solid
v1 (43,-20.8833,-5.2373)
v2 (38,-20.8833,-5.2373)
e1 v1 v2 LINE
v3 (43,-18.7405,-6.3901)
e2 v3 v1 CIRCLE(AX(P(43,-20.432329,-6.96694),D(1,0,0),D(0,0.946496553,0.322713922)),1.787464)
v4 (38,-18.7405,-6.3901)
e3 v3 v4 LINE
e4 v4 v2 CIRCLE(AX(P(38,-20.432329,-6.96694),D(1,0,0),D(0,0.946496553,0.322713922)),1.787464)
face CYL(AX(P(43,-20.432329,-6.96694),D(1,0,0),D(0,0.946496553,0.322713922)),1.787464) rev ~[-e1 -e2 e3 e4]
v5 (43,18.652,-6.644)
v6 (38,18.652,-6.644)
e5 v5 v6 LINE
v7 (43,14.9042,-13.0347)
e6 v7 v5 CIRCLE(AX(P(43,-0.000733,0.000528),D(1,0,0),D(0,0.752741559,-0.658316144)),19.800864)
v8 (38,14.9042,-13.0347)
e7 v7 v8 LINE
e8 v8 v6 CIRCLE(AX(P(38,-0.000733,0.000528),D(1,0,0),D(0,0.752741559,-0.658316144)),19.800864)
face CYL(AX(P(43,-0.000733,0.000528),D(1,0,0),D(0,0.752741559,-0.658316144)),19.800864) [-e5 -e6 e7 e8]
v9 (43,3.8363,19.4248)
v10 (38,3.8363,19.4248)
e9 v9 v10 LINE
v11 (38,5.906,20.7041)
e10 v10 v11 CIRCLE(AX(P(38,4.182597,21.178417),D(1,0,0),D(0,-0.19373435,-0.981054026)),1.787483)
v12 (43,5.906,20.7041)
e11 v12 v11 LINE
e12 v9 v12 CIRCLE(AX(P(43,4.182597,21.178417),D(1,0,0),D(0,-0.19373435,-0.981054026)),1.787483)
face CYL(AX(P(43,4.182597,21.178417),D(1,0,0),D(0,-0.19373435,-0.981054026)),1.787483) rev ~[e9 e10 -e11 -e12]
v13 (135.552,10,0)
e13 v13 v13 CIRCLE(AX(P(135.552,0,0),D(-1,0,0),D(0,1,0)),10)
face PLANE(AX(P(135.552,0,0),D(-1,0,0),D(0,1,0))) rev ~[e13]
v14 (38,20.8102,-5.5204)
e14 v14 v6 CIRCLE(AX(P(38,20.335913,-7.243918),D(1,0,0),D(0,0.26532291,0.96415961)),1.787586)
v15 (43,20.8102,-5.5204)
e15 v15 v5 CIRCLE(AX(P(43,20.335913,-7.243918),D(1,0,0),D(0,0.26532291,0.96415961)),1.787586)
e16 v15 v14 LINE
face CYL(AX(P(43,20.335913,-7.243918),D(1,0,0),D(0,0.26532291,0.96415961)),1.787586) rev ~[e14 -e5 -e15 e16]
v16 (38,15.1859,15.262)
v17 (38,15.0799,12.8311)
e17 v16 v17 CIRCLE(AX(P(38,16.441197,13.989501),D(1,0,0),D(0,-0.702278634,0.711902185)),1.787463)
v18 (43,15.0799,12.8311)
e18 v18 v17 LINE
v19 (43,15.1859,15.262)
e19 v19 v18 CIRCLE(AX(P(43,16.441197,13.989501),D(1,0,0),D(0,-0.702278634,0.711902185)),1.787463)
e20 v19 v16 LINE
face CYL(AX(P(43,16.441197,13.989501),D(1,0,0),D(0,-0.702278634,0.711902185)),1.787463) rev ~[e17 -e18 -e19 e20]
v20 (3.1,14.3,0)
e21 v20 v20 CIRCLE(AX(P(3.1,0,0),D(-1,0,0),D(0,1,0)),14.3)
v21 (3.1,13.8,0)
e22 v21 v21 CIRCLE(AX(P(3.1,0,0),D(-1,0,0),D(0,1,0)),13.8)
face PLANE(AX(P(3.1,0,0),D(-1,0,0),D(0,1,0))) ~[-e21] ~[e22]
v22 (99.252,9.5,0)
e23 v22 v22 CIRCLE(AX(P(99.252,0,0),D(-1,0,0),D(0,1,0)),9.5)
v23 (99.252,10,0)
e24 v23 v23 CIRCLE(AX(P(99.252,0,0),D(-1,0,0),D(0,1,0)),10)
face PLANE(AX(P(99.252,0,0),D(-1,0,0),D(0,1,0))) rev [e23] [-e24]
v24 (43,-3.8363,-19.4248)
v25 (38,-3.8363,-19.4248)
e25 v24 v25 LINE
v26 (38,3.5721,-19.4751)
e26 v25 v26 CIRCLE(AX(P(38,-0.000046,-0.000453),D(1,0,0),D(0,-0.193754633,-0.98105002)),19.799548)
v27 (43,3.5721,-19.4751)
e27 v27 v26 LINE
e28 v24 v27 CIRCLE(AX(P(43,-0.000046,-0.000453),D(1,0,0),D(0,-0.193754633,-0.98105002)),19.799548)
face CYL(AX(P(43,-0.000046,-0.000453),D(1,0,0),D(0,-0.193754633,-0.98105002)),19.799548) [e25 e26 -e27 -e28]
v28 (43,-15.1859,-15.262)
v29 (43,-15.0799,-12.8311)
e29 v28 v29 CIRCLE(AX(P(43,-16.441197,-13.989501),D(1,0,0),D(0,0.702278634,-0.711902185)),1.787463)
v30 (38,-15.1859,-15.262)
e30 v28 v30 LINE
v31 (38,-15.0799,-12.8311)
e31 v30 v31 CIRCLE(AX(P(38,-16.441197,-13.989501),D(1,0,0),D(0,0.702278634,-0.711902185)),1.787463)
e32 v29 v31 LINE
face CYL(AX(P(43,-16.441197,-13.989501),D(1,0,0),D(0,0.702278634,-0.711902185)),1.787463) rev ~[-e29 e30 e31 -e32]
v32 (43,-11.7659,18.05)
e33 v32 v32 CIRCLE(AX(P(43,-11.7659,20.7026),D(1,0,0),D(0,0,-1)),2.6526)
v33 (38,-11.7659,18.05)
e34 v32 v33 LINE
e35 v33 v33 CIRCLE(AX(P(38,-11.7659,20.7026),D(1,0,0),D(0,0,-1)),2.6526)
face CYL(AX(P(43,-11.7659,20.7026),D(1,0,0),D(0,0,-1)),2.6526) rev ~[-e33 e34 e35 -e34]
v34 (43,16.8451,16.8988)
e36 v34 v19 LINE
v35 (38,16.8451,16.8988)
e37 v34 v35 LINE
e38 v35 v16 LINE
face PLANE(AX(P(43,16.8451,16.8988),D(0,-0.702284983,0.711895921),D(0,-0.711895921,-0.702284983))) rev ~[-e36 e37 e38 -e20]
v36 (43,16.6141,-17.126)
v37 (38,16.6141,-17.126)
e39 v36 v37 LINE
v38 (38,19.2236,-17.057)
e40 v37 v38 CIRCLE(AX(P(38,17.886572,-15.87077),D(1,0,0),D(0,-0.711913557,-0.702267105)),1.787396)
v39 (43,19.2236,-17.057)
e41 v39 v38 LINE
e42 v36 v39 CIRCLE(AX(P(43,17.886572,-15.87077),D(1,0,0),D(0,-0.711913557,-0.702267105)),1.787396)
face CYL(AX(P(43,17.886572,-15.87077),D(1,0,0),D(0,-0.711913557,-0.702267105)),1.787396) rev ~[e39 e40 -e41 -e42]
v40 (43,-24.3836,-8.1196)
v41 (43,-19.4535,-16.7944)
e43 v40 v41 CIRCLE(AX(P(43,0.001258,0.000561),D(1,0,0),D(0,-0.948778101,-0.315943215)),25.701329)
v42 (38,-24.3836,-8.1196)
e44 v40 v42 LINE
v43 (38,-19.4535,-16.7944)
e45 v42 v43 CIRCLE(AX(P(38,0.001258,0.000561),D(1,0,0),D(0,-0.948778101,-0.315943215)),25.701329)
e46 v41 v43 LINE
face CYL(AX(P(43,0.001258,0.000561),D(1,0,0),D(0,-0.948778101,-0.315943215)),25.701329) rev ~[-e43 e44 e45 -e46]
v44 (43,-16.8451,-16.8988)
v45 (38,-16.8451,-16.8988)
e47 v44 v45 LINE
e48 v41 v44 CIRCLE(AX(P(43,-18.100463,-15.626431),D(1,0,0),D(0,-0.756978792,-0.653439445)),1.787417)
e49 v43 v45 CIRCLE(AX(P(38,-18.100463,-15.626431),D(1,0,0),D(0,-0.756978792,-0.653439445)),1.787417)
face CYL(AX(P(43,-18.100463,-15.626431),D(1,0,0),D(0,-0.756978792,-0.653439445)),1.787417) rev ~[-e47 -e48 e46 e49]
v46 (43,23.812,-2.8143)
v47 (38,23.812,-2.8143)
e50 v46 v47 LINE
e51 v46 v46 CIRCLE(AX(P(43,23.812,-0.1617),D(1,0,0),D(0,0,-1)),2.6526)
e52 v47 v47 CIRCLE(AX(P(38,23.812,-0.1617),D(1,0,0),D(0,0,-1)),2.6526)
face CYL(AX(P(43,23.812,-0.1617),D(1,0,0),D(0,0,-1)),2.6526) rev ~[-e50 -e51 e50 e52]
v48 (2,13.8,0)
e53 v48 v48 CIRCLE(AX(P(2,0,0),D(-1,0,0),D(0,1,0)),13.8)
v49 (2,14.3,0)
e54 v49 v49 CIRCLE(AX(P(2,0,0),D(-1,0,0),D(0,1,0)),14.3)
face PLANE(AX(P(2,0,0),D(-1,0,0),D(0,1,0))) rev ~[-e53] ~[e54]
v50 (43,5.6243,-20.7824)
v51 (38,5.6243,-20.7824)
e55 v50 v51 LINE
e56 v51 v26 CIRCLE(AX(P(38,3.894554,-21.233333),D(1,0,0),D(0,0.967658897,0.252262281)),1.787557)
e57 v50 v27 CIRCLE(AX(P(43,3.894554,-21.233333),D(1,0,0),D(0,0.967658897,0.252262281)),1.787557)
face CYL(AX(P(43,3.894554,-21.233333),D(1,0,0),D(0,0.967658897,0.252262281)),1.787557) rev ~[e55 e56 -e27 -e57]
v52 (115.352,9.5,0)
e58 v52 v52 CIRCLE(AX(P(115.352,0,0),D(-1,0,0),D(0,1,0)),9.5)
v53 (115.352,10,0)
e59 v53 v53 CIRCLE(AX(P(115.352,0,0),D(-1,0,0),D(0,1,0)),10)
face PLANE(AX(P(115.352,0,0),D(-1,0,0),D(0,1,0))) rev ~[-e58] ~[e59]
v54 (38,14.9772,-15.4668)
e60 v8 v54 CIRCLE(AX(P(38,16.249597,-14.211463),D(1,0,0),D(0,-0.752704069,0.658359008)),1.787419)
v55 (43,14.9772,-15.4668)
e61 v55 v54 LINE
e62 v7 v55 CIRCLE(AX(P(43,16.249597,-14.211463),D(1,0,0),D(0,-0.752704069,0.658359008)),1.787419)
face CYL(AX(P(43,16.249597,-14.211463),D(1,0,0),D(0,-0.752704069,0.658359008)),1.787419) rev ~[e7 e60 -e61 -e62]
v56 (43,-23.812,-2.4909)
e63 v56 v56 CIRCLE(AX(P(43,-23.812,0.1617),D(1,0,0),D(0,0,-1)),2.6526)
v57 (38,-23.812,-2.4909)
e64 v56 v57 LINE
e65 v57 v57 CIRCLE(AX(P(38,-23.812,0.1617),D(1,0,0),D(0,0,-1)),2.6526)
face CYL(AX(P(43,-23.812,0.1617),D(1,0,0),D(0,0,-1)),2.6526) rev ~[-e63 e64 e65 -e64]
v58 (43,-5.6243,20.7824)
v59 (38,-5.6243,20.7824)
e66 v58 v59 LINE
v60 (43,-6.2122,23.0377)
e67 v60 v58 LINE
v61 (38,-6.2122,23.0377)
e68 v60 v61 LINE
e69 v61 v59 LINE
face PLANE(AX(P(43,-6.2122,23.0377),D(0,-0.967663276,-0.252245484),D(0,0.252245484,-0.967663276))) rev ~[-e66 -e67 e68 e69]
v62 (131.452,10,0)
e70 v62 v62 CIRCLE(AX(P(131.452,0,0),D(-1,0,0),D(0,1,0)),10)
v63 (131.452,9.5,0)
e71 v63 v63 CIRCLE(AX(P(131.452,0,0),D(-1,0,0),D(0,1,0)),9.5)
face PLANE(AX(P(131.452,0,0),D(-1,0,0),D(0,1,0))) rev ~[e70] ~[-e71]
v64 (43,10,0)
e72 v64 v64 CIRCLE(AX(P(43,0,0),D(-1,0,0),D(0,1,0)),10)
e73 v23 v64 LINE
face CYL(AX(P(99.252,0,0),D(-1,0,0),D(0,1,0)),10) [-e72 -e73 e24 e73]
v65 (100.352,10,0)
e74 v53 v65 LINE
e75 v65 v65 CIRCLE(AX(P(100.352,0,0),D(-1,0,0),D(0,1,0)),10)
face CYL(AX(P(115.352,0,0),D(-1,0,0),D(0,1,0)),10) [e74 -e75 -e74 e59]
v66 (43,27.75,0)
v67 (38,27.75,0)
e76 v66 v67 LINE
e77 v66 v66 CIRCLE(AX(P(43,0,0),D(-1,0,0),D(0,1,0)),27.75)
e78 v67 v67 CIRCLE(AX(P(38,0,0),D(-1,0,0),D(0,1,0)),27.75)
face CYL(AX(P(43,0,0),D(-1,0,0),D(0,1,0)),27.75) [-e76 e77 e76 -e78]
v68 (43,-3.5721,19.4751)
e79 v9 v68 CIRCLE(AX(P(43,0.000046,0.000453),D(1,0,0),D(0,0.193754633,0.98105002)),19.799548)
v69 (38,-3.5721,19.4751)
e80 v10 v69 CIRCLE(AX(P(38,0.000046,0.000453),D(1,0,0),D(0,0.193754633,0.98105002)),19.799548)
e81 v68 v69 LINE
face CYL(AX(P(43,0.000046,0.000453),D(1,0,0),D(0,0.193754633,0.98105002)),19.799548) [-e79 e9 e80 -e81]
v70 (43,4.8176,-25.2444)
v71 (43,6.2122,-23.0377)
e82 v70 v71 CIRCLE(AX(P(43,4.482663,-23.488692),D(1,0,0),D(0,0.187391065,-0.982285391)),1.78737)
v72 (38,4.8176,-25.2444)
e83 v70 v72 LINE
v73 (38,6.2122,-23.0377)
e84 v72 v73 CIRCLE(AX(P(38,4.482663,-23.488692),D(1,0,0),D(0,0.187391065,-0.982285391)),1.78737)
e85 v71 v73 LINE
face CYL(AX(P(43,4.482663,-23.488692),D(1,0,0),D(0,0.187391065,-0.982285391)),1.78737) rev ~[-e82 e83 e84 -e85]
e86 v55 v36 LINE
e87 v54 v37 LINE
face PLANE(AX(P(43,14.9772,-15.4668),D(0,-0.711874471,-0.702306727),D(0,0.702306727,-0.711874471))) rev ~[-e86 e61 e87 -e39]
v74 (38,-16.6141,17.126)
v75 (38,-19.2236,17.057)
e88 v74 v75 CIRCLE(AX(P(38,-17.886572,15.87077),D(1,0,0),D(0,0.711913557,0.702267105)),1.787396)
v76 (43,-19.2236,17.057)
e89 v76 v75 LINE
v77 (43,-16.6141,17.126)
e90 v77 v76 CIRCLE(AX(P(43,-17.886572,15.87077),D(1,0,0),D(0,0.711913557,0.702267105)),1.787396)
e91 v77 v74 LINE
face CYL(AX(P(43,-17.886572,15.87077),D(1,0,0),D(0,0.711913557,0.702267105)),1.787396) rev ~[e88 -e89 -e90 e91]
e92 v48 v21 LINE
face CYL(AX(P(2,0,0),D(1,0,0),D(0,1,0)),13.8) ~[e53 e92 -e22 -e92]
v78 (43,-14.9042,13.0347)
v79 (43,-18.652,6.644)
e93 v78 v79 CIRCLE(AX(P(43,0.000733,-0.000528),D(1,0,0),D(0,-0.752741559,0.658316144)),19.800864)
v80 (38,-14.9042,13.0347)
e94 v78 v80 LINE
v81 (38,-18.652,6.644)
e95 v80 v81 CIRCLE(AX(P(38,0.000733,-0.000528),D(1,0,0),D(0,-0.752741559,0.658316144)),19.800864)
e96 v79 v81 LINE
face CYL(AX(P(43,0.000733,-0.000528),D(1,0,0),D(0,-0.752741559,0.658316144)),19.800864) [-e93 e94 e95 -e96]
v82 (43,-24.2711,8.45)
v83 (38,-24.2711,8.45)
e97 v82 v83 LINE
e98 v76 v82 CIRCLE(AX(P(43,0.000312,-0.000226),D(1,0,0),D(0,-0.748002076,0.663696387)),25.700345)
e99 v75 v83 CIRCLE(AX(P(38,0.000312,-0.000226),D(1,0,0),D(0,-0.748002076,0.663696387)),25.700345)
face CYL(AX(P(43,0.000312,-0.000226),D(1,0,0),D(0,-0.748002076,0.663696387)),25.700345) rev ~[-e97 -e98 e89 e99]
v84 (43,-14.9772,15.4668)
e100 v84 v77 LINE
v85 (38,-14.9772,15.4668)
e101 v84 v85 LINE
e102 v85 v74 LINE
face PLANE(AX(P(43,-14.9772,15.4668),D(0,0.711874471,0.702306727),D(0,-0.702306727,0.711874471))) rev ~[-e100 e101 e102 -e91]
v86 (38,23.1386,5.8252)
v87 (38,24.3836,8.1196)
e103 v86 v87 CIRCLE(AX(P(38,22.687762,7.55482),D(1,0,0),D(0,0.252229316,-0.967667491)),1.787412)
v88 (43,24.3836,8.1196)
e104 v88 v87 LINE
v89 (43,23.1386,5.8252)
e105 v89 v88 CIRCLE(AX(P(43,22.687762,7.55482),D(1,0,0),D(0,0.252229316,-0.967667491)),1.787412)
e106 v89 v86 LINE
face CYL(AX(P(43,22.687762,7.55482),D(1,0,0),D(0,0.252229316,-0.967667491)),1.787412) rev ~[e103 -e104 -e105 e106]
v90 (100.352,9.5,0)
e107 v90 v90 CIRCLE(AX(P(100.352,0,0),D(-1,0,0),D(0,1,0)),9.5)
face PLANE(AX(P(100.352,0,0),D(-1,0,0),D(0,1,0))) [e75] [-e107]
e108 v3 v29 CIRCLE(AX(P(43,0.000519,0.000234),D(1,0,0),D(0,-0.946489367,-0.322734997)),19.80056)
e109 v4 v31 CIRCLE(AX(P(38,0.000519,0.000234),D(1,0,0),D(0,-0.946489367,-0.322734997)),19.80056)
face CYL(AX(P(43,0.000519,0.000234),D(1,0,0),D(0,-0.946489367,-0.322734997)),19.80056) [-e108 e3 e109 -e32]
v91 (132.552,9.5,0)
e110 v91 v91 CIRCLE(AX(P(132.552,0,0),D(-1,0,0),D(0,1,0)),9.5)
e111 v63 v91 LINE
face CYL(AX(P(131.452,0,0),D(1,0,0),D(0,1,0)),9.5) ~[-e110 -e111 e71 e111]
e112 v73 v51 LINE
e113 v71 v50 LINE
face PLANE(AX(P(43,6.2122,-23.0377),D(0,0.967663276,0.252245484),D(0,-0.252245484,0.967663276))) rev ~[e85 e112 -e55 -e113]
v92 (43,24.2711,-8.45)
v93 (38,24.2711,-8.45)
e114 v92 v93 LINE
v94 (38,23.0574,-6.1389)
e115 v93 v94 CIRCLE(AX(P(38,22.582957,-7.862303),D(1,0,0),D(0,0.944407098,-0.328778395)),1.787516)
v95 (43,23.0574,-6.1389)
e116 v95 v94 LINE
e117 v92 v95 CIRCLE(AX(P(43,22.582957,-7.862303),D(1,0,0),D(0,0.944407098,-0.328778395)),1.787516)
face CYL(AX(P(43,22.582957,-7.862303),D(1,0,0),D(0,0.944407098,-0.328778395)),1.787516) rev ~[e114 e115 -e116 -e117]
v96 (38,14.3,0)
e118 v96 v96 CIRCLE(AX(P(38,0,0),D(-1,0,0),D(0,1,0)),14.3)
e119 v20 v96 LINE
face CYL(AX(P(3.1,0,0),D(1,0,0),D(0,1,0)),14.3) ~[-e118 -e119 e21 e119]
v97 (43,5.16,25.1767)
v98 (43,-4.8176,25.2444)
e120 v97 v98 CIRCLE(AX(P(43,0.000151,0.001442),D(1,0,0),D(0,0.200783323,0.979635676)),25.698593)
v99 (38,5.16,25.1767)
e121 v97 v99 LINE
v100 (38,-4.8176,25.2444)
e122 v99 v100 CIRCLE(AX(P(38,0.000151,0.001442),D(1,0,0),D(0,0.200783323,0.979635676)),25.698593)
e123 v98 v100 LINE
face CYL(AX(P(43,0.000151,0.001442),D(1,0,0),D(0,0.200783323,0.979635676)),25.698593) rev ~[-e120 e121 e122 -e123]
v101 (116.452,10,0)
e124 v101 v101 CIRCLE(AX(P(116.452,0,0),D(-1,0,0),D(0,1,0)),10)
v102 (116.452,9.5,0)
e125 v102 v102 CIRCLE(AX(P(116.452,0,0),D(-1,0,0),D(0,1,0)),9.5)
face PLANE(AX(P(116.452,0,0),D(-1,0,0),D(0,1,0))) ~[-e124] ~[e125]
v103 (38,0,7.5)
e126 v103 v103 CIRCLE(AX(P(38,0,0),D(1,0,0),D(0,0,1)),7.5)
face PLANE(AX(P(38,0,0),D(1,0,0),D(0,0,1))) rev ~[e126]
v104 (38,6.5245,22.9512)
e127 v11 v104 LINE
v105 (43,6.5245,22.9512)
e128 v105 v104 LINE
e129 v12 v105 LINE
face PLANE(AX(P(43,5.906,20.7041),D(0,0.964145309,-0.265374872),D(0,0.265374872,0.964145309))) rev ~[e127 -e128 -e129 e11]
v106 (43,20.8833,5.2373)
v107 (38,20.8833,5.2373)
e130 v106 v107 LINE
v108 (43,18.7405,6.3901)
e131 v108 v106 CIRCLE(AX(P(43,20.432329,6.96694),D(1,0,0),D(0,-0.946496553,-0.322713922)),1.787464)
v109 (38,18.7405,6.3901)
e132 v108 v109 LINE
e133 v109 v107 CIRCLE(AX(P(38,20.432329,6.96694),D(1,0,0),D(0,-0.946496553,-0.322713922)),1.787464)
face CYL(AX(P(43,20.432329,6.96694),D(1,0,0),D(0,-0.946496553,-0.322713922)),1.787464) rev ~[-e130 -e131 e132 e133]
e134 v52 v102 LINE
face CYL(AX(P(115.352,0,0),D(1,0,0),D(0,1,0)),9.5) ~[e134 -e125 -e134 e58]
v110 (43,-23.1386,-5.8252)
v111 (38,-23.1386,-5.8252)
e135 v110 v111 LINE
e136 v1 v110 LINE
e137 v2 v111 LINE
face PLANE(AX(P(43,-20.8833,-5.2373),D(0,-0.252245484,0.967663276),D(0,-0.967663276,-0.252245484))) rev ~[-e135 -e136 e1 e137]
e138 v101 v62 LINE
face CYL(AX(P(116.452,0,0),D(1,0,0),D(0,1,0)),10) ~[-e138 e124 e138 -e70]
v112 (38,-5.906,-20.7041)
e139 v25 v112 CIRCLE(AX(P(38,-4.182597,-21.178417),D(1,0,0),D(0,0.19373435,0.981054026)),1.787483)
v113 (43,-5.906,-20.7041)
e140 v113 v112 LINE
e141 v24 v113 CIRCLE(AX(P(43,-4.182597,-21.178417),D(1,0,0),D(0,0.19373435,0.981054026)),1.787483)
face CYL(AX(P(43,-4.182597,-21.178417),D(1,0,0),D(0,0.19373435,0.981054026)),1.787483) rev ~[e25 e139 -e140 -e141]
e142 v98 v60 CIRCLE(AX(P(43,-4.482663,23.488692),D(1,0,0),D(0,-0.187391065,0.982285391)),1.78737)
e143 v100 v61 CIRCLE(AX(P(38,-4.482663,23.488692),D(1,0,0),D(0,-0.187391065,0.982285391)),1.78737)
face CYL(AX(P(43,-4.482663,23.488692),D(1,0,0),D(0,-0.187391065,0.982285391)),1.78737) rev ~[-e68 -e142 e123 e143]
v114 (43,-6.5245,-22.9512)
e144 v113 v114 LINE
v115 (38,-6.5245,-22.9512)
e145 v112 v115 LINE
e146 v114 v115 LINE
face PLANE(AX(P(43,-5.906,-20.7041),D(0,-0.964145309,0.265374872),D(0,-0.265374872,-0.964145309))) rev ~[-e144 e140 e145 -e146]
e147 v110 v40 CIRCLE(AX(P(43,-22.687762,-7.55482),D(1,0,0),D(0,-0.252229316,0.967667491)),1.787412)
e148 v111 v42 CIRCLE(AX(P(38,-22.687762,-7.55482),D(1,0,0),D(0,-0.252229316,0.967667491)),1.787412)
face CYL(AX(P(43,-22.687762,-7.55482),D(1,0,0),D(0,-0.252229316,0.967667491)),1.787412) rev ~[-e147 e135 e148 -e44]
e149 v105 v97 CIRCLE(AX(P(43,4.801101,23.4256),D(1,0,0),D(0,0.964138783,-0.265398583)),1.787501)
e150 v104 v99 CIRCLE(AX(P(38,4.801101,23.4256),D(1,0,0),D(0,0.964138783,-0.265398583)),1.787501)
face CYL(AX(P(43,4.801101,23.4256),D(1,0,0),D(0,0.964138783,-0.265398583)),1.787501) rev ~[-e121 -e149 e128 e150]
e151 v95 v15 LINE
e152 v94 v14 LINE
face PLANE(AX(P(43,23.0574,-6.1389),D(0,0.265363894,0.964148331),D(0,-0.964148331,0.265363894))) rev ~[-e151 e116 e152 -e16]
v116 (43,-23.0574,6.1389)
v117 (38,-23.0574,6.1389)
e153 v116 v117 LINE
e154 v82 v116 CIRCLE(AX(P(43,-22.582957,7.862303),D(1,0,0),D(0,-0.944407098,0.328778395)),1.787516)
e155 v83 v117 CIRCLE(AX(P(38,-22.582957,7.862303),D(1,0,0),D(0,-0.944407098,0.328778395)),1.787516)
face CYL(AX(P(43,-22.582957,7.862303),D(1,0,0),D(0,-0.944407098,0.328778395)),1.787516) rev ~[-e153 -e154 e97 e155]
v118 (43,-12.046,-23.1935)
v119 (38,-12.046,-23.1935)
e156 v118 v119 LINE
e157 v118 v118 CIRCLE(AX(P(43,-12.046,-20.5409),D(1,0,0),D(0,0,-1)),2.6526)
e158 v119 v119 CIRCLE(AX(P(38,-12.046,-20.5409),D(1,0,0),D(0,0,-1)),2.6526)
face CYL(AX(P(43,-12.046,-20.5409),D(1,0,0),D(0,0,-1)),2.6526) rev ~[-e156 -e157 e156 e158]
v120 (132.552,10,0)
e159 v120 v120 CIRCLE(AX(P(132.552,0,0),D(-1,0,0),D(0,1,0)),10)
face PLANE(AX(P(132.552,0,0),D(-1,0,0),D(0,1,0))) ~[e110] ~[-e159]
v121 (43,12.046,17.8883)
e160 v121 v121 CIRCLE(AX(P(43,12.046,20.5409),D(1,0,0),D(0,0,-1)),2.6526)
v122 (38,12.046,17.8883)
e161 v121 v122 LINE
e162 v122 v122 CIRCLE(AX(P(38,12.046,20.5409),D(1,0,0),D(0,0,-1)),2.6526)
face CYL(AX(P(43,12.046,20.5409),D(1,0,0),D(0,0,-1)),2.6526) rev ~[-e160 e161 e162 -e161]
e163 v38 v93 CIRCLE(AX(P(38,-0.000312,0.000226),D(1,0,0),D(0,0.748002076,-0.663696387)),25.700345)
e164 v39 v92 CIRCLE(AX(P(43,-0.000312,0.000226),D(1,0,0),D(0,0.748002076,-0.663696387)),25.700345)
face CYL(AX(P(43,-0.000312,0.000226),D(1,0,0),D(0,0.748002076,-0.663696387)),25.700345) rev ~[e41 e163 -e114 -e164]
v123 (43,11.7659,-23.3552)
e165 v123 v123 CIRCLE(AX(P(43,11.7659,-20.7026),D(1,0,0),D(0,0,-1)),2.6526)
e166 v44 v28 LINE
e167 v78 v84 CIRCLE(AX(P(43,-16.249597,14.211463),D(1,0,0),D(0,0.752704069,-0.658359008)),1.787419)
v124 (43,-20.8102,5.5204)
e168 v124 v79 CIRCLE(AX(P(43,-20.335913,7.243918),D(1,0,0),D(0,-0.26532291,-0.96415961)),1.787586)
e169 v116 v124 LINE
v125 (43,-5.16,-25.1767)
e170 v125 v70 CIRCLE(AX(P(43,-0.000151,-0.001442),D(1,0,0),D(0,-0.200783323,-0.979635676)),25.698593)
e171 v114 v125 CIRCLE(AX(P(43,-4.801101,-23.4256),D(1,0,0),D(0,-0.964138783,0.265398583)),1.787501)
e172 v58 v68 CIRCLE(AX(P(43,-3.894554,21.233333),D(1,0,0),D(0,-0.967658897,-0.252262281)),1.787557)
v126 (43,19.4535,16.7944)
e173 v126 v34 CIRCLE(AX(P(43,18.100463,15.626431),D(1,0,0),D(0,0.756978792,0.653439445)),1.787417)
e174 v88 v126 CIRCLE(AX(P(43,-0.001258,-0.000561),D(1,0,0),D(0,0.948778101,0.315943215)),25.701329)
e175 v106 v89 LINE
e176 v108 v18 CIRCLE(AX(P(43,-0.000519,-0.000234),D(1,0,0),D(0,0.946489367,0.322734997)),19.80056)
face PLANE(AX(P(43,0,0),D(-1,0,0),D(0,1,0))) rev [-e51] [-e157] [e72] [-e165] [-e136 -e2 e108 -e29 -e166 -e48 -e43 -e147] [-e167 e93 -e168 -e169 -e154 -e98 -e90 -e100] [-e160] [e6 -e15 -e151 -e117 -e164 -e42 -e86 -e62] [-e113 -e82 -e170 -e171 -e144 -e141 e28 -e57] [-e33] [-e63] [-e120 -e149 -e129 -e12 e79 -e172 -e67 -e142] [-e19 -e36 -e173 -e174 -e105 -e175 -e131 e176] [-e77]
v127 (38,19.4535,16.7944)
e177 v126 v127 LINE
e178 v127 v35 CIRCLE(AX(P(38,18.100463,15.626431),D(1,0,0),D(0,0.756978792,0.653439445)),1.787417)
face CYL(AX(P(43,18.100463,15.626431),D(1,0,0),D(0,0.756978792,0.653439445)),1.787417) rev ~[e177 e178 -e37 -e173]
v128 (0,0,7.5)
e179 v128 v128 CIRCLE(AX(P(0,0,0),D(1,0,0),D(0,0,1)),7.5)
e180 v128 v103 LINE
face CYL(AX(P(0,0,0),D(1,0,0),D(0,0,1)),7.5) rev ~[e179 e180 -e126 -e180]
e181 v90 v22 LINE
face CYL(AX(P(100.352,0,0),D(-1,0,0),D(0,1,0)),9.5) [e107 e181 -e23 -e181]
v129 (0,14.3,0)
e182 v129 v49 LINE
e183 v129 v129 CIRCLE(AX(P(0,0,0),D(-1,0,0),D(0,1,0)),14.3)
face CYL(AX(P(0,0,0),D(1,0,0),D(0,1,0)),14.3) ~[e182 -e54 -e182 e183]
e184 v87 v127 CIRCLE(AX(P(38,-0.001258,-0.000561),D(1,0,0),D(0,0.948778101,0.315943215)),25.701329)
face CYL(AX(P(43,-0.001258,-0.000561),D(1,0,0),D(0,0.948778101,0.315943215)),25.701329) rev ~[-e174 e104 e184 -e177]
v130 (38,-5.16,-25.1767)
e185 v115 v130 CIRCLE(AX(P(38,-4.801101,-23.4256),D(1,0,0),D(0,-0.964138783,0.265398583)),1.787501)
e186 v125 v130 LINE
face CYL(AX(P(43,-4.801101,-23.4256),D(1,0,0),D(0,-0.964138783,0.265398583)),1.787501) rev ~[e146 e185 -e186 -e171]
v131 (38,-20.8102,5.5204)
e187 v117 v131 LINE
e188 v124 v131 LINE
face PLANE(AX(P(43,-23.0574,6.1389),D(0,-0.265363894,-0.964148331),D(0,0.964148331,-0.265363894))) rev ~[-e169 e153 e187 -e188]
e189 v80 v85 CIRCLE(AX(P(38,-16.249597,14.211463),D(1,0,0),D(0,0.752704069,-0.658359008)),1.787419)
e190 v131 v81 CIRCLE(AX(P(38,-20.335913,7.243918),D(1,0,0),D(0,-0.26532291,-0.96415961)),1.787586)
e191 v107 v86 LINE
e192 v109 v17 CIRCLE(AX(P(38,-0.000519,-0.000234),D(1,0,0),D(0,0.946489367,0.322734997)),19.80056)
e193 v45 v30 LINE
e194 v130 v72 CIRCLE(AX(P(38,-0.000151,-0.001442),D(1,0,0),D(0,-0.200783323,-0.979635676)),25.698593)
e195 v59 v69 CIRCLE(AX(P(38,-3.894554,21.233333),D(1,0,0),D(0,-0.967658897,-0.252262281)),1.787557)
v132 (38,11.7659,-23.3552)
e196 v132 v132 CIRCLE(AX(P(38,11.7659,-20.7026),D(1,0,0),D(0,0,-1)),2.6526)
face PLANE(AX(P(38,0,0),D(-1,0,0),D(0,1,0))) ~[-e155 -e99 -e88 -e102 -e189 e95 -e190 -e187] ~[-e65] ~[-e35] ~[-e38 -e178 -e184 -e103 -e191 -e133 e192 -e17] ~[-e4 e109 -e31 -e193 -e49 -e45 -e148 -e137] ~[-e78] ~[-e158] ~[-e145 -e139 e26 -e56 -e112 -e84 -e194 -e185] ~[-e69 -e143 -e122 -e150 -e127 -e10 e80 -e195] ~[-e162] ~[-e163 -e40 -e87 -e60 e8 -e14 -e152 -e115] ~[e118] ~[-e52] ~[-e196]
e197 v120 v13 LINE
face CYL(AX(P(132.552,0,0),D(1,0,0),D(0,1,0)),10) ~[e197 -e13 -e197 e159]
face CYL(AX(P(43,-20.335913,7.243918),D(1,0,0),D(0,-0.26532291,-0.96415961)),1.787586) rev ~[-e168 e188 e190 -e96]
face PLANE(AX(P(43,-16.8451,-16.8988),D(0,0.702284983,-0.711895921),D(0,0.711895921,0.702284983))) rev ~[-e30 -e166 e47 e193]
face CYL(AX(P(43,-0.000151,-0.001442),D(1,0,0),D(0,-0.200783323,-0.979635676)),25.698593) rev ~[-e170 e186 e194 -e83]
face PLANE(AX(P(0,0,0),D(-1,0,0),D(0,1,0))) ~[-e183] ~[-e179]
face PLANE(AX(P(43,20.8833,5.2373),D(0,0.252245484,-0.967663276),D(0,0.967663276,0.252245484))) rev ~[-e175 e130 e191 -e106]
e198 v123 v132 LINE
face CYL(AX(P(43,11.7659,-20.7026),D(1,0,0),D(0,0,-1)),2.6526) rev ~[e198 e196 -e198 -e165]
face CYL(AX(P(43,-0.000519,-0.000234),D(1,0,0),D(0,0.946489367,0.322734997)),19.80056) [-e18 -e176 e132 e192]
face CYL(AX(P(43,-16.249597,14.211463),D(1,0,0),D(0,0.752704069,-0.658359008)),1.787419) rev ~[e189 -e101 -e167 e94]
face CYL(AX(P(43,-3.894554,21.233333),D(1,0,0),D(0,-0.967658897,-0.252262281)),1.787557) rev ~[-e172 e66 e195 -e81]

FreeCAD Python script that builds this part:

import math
import FreeCAD as App
import Part
import Sketcher

V = App.Vector
Q = App.Units.Quantity

doc = App.newDocument("Part")
body = doc.addObject("PartDesign::Body", "Body")

# Sketch on XY plane
sketch1 = body.newObject("Sketcher::SketchObject", "Sketch")
sketch1.AttachmentSupport = (doc.getObject("XY_Plane"), [""])
sketch1.MapMode = "FlatFace"
sketch1.addGeometry(Part.LineSegment(V(0, 14.3, 0), V(0, 0, 0)), False)
sketch1.addGeometry(Part.LineSegment(V(0, 0, 0), V(135.552, 0, 0)), False)
sketch1.addGeometry(Part.LineSegment(V(135.552, 0, 0), V(135.552, 10, 0)), False)
sketch1.addGeometry(Part.LineSegment(V(135.552, 10, 0), V(132.552, 10, 0)), False)
sketch1.addGeometry(Part.LineSegment(V(132.552, 10, 0), V(132.552, 9.5, 0)), False)
sketch1.addGeometry(Part.LineSegment(V(132.552, 9.5, 0), V(131.452, 9.5, 0)), False)
sketch1.addGeometry(Part.LineSegment(V(131.452, 9.5, 0), V(131.452, 10, 0)), False)
sketch1.addGeometry(Part.LineSegment(V(131.452, 10, 0), V(116.452, 10, 0)), False)
sketch1.addGeometry(Part.LineSegment(V(116.452, 10, 0), V(116.452, 9.5, 0)), False)
sketch1.addGeometry(Part.LineSegment(V(116.452, 9.5, 0), V(115.352, 9.5, 0)), False)
sketch1.addGeometry(Part.LineSegment(V(115.352, 9.5, 0), V(115.352, 10, 0)), False)
sketch1.addGeometry(Part.LineSegment(V(115.352, 10, 0), V(100.352, 10, 0)), False)
sketch1.addGeometry(Part.LineSegment(V(100.352, 10, 0), V(100.352, 9.5, 0)), False)
sketch1.addGeometry(Part.LineSegment(V(100.352, 9.5, 0), V(99.252, 9.5, 0)), False)
sketch1.addGeometry(Part.LineSegment(V(99.252, 9.5, 0), V(99.252, 10, 0)), False)
sketch1.addGeometry(Part.LineSegment(V(99.252, 10, 0), V(43, 10, 0)), False)
sketch1.addGeometry(Part.LineSegment(V(43, 10, 0), V(43, 27.75, 0)), False)
sketch1.addGeometry(Part.LineSegment(V(43, 27.75, 0), V(38, 27.75, 0)), False)
sketch1.addGeometry(Part.LineSegment(V(38, 27.75, 0), V(38, 14.3, 0)), False)
sketch1.addGeometry(Part.LineSegment(V(38, 14.3, 0), V(3.1, 14.3, 0)), False)
sketch1.addGeometry(Part.LineSegment(V(3.1, 14.3, 0), V(3.1, 13.8, 0)), False)
sketch1.addGeometry(Part.LineSegment(V(3.1, 13.8, 0), V(2, 13.8, 0)), False)
sketch1.addGeometry(Part.LineSegment(V(2, 13.8, 0), V(2, 14.3, 0)), False)
sketch1.addGeometry(Part.LineSegment(V(2, 14.3, 0), V(0, 14.3, 0)), False)
sketch1.addConstraint(Sketcher.Constraint("Coincident", 0, 2, 1, 1))
sketch1.addConstraint(Sketcher.Constraint("Coincident", 1, 2, 2, 1))
sketch1.addConstraint(Sketcher.Constraint("Coincident", 2, 2, 3, 1))
sketch1.addConstraint(Sketcher.Constraint("Coincident", 3, 2, 4, 1))
sketch1.addConstraint(Sketcher.Constraint("Coincident", 4, 2, 5, 1))
sketch1.addConstraint(Sketcher.Constraint("Coincident", 5, 2, 6, 1))
sketch1.addConstraint(Sketcher.Constraint("Coincident", 6, 2, 7, 1))
sketch1.addConstraint(Sketcher.Constraint("Coincident", 7, 2, 8, 1))
sketch1.addConstraint(Sketcher.Constraint("Coincident", 8, 2, 9, 1))
sketch1.addConstraint(Sketcher.Constraint("Coincident", 9, 2, 10, 1))
sketch1.addConstraint(Sketcher.Constraint("Coincident", 10, 2, 11, 1))
sketch1.addConstraint(Sketcher.Constraint("Coincident", 11, 2, 12, 1))
sketch1.addConstraint(Sketcher.Constraint("Coincident", 12, 2, 13, 1))
sketch1.addConstraint(Sketcher.Constraint("Coincident", 13, 2, 14, 1))
sketch1.addConstraint(Sketcher.Constraint("Coincident", 14, 2, 15, 1))
sketch1.addConstraint(Sketcher.Constraint("Coincident", 15, 2, 16, 1))
sketch1.addConstraint(Sketcher.Constraint("Coincident", 16, 2, 17, 1))
sketch1.addConstraint(Sketcher.Constraint("Coincident", 17, 2, 18, 1))
sketch1.addConstraint(Sketcher.Constraint("Coincident", 18, 2, 19, 1))
sketch1.addConstraint(Sketcher.Constraint("Coincident", 19, 2, 20, 1))
sketch1.addConstraint(Sketcher.Constraint("Coincident", 20, 2, 21, 1))
sketch1.addConstraint(Sketcher.Constraint("Coincident", 21, 2, 22, 1))
sketch1.addConstraint(Sketcher.Constraint("Coincident", 22, 2, 23, 1))
sketch1.addConstraint(Sketcher.Constraint("Coincident", 23, 2, 0, 1))
sketch1.addConstraint(Sketcher.Constraint("Vertical", 0))
sketch1.addConstraint(Sketcher.Constraint("Horizontal", 1))
sketch1.addConstraint(Sketcher.Constraint("Vertical", 2))
sketch1.addConstraint(Sketcher.Constraint("Horizontal", 3))
sketch1.addConstraint(Sketcher.Constraint("Vertical", 4))
sketch1.addConstraint(Sketcher.Constraint("Horizontal", 5))
sketch1.addConstraint(Sketcher.Constraint("Vertical", 6))
sketch1.addConstraint(Sketcher.Constraint("Horizontal", 7))
sketch1.addConstraint(Sketcher.Constraint("Vertical", 8))
sketch1.addConstraint(Sketcher.Constraint("Horizontal", 9))
sketch1.addConstraint(Sketcher.Constraint("Vertical", 10))
sketch1.addConstraint(Sketcher.Constraint("Horizontal", 11))
sketch1.addConstraint(Sketcher.Constraint("Vertical", 12))
sketch1.addConstraint(Sketcher.Constraint("Horizontal", 13))
sketch1.addConstraint(Sketcher.Constraint("Vertical", 14))
sketch1.addConstraint(Sketcher.Constraint("Horizontal", 15))
sketch1.addConstraint(Sketcher.Constraint("Vertical", 16))
sketch1.addConstraint(Sketcher.Constraint("Horizontal", 17))
sketch1.addConstraint(Sketcher.Constraint("Vertical", 18))
sketch1.addConstraint(Sketcher.Constraint("Horizontal", 19))
sketch1.addConstraint(Sketcher.Constraint("Vertical", 20))
sketch1.addConstraint(Sketcher.Constraint("Horizontal", 21))
sketch1.addConstraint(Sketcher.Constraint("Vertical", 22))
sketch1.addConstraint(Sketcher.Constraint("Horizontal", 23))
sketch1.addConstraint(Sketcher.Constraint("Coincident", 0, 2, -1, 1))
sketch1.addConstraint(Sketcher.Constraint("Horizontal", 3, 2, 6, 2))
sketch1.addConstraint(Sketcher.Constraint("Horizontal", 5, 2, 8, 2))
sketch1.addConstraint(Sketcher.Constraint("Horizontal", 7, 2, 10, 2))
sketch1.addConstraint(Sketcher.Constraint("Horizontal", 9, 2, 12, 2))
sketch1.addConstraint(Sketcher.Constraint("Horizontal", 11, 2, 14, 2))
sketch1.addConstraint(Sketcher.Constraint("Horizontal", 19, 2, 22, 2))
sketch1.addConstraint(Sketcher.Constraint("Equal", 5, 9))
sketch1.addConstraint(Sketcher.Constraint("Equal", 7, 11))
sketch1.addConstraint(Sketcher.Constraint("Equal", 9, 13))
sketch1.addConstraint(Sketcher.Constraint("Equal", 13, 21))
sketch1.addConstraint(Sketcher.Constraint("Equal", 14, 20))
sketch1.addConstraint(Sketcher.Constraint("DistanceX", 3, 2, 3, 1, Q("3 mm")))
sketch1.addConstraint(Sketcher.Constraint("DistanceX", 7, 2, 7, 1, Q("15 mm")))
sketch1.addConstraint(Sketcher.Constraint("DistanceX", 17, 2, 17, 1, Q("5 mm")))
sketch1.addConstraint(Sketcher.Constraint("DistanceX", 23, 2, 23, 1, Q("2 mm")))
sketch1.addConstraint(Sketcher.Constraint("DistanceY", 2, 1, 2, 2, Q("10 mm")))
sketch1.addConstraint(Sketcher.Constraint("DistanceX", 5, 2, 5, 1, Q("1.1 mm")))
sketch1.addConstraint(Sketcher.Constraint("DistanceX", 19, 2, 19, 1, Q("34.9 mm")))
sketch1.addConstraint(Sketcher.Constraint("DistanceY", 0, 2, 0, 1, Q("14.3 mm")))
sketch1.addConstraint(Sketcher.Constraint("DistanceY", 4, 2, 4, 1, Q("0.5 mm")))
sketch1.addConstraint(Sketcher.Constraint("DistanceY", -1, 1, 16, 2, Q("27.75 mm")))
sketch1.addConstraint(Sketcher.Constraint("DistanceX", 1, 1, 1, 2, Q("135.552 mm")))
revolution = body.newObject("PartDesign::Revolution", "Revolution")
revolution.Profile = sketch1
revolution.ReferenceAxis = (sketch1, ["H_Axis"])
revolution.Angle = 360

# Sketch on YZ plane
sketch2 = body.newObject("Sketcher::SketchObject", "Sketch001")
sketch2.AttachmentSupport = (doc.getObject("YZ_Plane"), [""])
sketch2.MapMode = "FlatFace"
sketch2.AttachmentOffset = App.Placement(V(0, 0, 43), App.Rotation())
sketch2.addGeometry(Part.ArcOfCircle(Part.Circle(V(-0.000151, -0.001442, 0), V(0, 0, 1), 25.698593), math.radians(-101.582769), math.radians(-79.194745)), False)
sketch2.addGeometry(Part.ArcOfCircle(Part.Circle(V(4.4826, -23.4886, 0), V(0, 0, 1), 1.787473), math.radians(-79.198009), math.radians(14.611569)), False)
sketch2.addGeometry(Part.LineSegment(V(6.2122, -23.0377, 0), V(5.6243, -20.7824, 0)), False)
sketch2.addGeometry(Part.ArcOfCircle(Part.Circle(V(3.8946, -21.2333, 0), V(0, 0, 1), 1.787505), math.radians(14.61076), math.radians(100.394007)), False)
sketch2.addGeometry(Part.ArcOfCircle(Part.Circle(V(0, 0, 0), V(0, 0, 1), 19.799964), math.radians(-101.171858), math.radians(-79.606403)), False)
sketch2.addGeometry(Part.ArcOfCircle(Part.Circle(V(-4.1826, -21.1784, 0), V(0, 0, 1), 1.787467), math.radians(78.828996), math.radians(164.612468)), False)
sketch2.addGeometry(Part.LineSegment(V(-5.906, -20.7041, 0), V(-6.5245, -22.9512, 0)), False)
sketch2.addGeometry(Part.ArcOfCircle(Part.Circle(V(-4.8011, -23.4256, 0), V(0, 0, 1), 1.787502), math.radians(164.609377), math.radians(258.417245)), False)
sketch2.addGeometry(Part.Circle(V(-12.046, -20.5409, 0), V(0, 0, 1), 2.6526), False)
sketch2.addGeometry(Part.LineSegment(V(14.9772, -15.4668, 0), V(16.6141, -17.126, 0)), False)
sketch2.addGeometry(Part.ArcOfCircle(Part.Circle(V(17.8866, -15.8707, 0), V(0, 0, 1), 1.787466), math.radians(-135.389854), math.radians(-41.582162)), False)
sketch2.addGeometry(Part.ArcOfCircle(Part.Circle(V(0, 0, 0), V(0, 0, 1), 25.700035), math.radians(-41.582477), math.radians(-19.195597)), False)
sketch2.addGeometry(Part.ArcOfCircle(Part.Circle(V(22.583, -7.8623, 0), V(0, 0, 1), 1.787477), math.radians(-19.195199), math.radians(74.609377)), False)
sketch2.addGeometry(Part.LineSegment(V(23.0574, -6.1389, 0), V(20.8102, -5.5204, 0)), False)
sketch2.addGeometry(Part.ArcOfCircle(Part.Circle(V(20.3359, -7.2438, 0), V(0, 0, 1), 1.787475), math.radians(74.612468), math.radians(160.394257)), False)
sketch2.addGeometry(Part.ArcOfCircle(Part.Circle(V(0, 0, 0), V(0, 0, 1), 19.800001), math.radians(-41.171824), math.radians(-19.606329)), False)
sketch2.addGeometry(Part.ArcOfCircle(Part.Circle(V(16.2497, -14.2115, 0), V(0, 0, 1), 1.78752), math.radians(138.826438), math.radians(224.610146)), False)
sketch2.addGeometry(Part.Circle(V(11.7659, -20.7026, 0), V(0, 0, 1), 2.6526), False)
sketch2.addGeometry(Part.LineSegment(V(20.8833, 5.2373, 0), V(23.1386, 5.8252, 0)), False)
sketch2.addGeometry(Part.ArcOfCircle(Part.Circle(V(22.6877, 7.5549, 0), V(0, 0, 1), 1.787505), math.radians(-75.38924), math.radians(18.416703)), False)
sketch2.addGeometry(Part.ArcOfCircle(Part.Circle(V(-0.001258, -0.000561, 0), V(0, 0, 1), 25.701329), math.radians(18.417764), math.radians(40.803483)), False)
sketch2.addGeometry(Part.ArcOfCircle(Part.Circle(V(18.1004, 15.6263, 0), V(0, 0, 1), 1.787551), math.radians(40.803286), math.radians(134.610146)), False)
sketch2.addGeometry(Part.LineSegment(V(16.8451, 16.8988, 0), V(15.1859, 15.262, 0)), False)
sketch2.addGeometry(Part.ArcOfCircle(Part.Circle(V(16.4412, 13.9895, 0), V(0, 0, 1), 1.787466), math.radians(134.610146), math.radians(220.396165)), False)
sketch2.addGeometry(Part.ArcOfCircle(Part.Circle(V(0, 0, 0), V(0, 0, 1), 19.800001), math.radians(18.828252), math.radians(40.393607)), False)
sketch2.addGeometry(Part.ArcOfCircle(Part.Circle(V(20.4324, 6.967, 0), V(0, 0, 1), 1.787551), math.radians(-161.171774), math.radians(-75.38924)), False)
sketch2.addGeometry(Part.Circle(V(23.812, -0.1617, 0), V(0, 0, 1), 2.6526), False)
sketch2.addGeometry(Part.LineSegment(V(5.906, 20.7041, 0), V(6.5245, 22.9512, 0)), False)
sketch2.addGeometry(Part.ArcOfCircle(Part.Circle(V(4.8011, 23.4256, 0), V(0, 0, 1), 1.787502), math.radians(-15.390623), math.radians(78.417245)), False)
sketch2.addGeometry(Part.ArcOfCircle(Part.Circle(V(0.000151, 0.001442, 0), V(0, 0, 1), 25.698593), math.radians(78.417231), math.radians(100.805255)), False)
sketch2.addGeometry(Part.ArcOfCircle(Part.Circle(V(-4.4826, 23.4886, 0), V(0, 0, 1), 1.787473), math.radians(100.801991), math.radians(194.611569)), False)
sketch2.addGeometry(Part.LineSegment(V(-6.2122, 23.0377, 0), V(-5.6243, 20.7824, 0)), False)
sketch2.addGeometry(Part.ArcOfCircle(Part.Circle(V(-3.8946, 21.2333, 0), V(0, 0, 1), 1.787505), math.radians(-165.38924), math.radians(-79.605993)), False)
sketch2.addGeometry(Part.ArcOfCircle(Part.Circle(V(0, 0, 0), V(0, 0, 1), 19.799964), math.radians(78.828142), math.radians(100.393597)), False)
sketch2.addGeometry(Part.ArcOfCircle(Part.Circle(V(4.1826, 21.1784, 0), V(0, 0, 1), 1.787467), math.radians(-101.171004), math.radians(-15.387532)), False)
sketch2.addGeometry(Part.Circle(V(12.046, 20.5409, 0), V(0, 0, 1), 2.6526), False)
sketch2.addGeometry(Part.LineSegment(V(-14.9772, 15.4668, 0), V(-16.6141, 17.126, 0)), False)
sketch2.addGeometry(Part.ArcOfCircle(Part.Circle(V(-17.8866, 15.8707, 0), V(0, 0, 1), 1.787466), math.radians(44.610146), math.radians(138.417838)), False)
sketch2.addGeometry(Part.ArcOfCircle(Part.Circle(V(0, 0, 0), V(0, 0, 1), 25.700035), math.radians(138.417523), math.radians(160.804403)), False)
sketch2.addGeometry(Part.ArcOfCircle(Part.Circle(V(-22.583, 7.8623, 0), V(0, 0, 1), 1.787477), math.radians(160.804801), math.radians(254.609377)), False)
sketch2.addGeometry(Part.LineSegment(V(-23.0574, 6.1389, 0), V(-20.8102, 5.5204, 0)), False)
sketch2.addGeometry(Part.ArcOfCircle(Part.Circle(V(-20.3359, 7.2438, 0), V(0, 0, 1), 1.787475), math.radians(-105.387532), math.radians(-19.605743)), False)
sketch2.addGeometry(Part.ArcOfCircle(Part.Circle(V(0, 0, 0), V(0, 0, 1), 19.800001), math.radians(138.828176), math.radians(160.393671)), False)
sketch2.addGeometry(Part.ArcOfCircle(Part.Circle(V(-16.2497, 14.2115, 0), V(0, 0, 1), 1.78752), math.radians(-41.173562), math.radians(44.610146)), False)
sketch2.addGeometry(Part.Circle(V(-11.7659, 20.7026, 0), V(0, 0, 1), 2.6526), False)
sketch2.addGeometry(Part.LineSegment(V(-20.8833, -5.2373, 0), V(-23.1386, -5.8252, 0)), False)
sketch2.addGeometry(Part.ArcOfCircle(Part.Circle(V(-22.6877, -7.5549, 0), V(0, 0, 1), 1.787505), math.radians(104.61076), math.radians(198.416703)), False)
sketch2.addGeometry(Part.ArcOfCircle(Part.Circle(V(0.001258, 0.000561, 0), V(0, 0, 1), 25.701329), math.radians(-161.582236), math.radians(-139.196517)), False)
sketch2.addGeometry(Part.ArcOfCircle(Part.Circle(V(-18.1004, -15.6263, 0), V(0, 0, 1), 1.787551), math.radians(-139.196714), math.radians(-45.389854)), False)
sketch2.addGeometry(Part.LineSegment(V(-16.8451, -16.8988, 0), V(-15.1859, -15.262, 0)), False)
sketch2.addGeometry(Part.ArcOfCircle(Part.Circle(V(-16.4412, -13.9895, 0), V(0, 0, 1), 1.787466), math.radians(-45.389854), math.radians(40.396165)), False)
sketch2.addGeometry(Part.ArcOfCircle(Part.Circle(V(0, 0, 0), V(0, 0, 1), 19.800001), math.radians(-161.171748), math.radians(-139.606393)), False)
sketch2.addGeometry(Part.ArcOfCircle(Part.Circle(V(-20.4324, -6.967, 0), V(0, 0, 1), 1.787551), math.radians(18.828226), math.radians(104.61076)), False)
sketch2.addGeometry(Part.Circle(V(-23.812, 0.1617, 0), V(0, 0, 1), 2.6526), False)
sketch2.addConstraint(Sketcher.Constraint("Tangent", 0, 2, 1, 1))
sketch2.addConstraint(Sketcher.Constraint("Tangent", 1, 2, 2, 1))
sketch2.addConstraint(Sketcher.Constraint("Tangent", 2, 2, 3, 1))
sketch2.addConstraint(Sketcher.Constraint("Tangent", 3, 2, 4, 2))
sketch2.addConstraint(Sketcher.Constraint("Tangent", 4, 1, 5, 1))
sketch2.addConstraint(Sketcher.Constraint("Tangent", 5, 2, 6, 1))
sketch2.addConstraint(Sketcher.Constraint("Tangent", 6, 2, 7, 1))
sketch2.addConstraint(Sketcher.Constraint("Tangent", 7, 2, 0, 1))
sketch2.addConstraint(Sketcher.Constraint("Tangent", 9, 2, 10, 1))
sketch2.addConstraint(Sketcher.Constraint("Tangent", 10, 2, 11, 1))
sketch2.addConstraint(Sketcher.Constraint("Tangent", 11, 2, 12, 1))
sketch2.addConstraint(Sketcher.Constraint("Tangent", 12, 2, 13, 1))
sketch2.addConstraint(Sketcher.Constraint("Tangent", 13, 2, 14, 1))
sketch2.addConstraint(Sketcher.Constraint("Tangent", 14, 2, 15, 2))
sketch2.addConstraint(Sketcher.Constraint("Tangent", 15, 1, 16, 1))
sketch2.addConstraint(Sketcher.Constraint("Tangent", 16, 2, 9, 1))
sketch2.addConstraint(Sketcher.Constraint("Tangent", 18, 2, 19, 1))
sketch2.addConstraint(Sketcher.Constraint("Tangent", 19, 2, 20, 1))
sketch2.addConstraint(Sketcher.Constraint("Tangent", 20, 2, 21, 1))
sketch2.addConstraint(Sketcher.Constraint("Tangent", 21, 2, 22, 1))
sketch2.addConstraint(Sketcher.Constraint("Tangent", 22, 2, 23, 1))
sketch2.addConstraint(Sketcher.Constraint("Tangent", 23, 2, 24, 2))
sketch2.addConstraint(Sketcher.Constraint("Tangent", 24, 1, 25, 1))
sketch2.addConstraint(Sketcher.Constraint("Tangent", 25, 2, 18, 1))
sketch2.addConstraint(Sketcher.Constraint("Tangent", 27, 2, 28, 1))
sketch2.addConstraint(Sketcher.Constraint("Tangent", 28, 2, 29, 1))
sketch2.addConstraint(Sketcher.Constraint("Tangent", 29, 2, 30, 1))
sketch2.addConstraint(Sketcher.Constraint("Tangent", 30, 2, 31, 1))
sketch2.addConstraint(Sketcher.Constraint("Tangent", 31, 2, 32, 1))
sketch2.addConstraint(Sketcher.Constraint("Tangent", 32, 2, 33, 2))
sketch2.addConstraint(Sketcher.Constraint("Tangent", 33, 1, 34, 1))
sketch2.addConstraint(Sketcher.Constraint("Tangent", 34, 2, 27, 1))
sketch2.addConstraint(Sketcher.Constraint("Tangent", 36, 2, 37, 1))
sketch2.addConstraint(Sketcher.Constraint("Tangent", 37, 2, 38, 1))
sketch2.addConstraint(Sketcher.Constraint("Tangent", 38, 2, 39, 1))
sketch2.addConstraint(Sketcher.Constraint("Tangent", 39, 2, 40, 1))
sketch2.addConstraint(Sketcher.Constraint("Tangent", 40, 2, 41, 1))
sketch2.addConstraint(Sketcher.Constraint("Tangent", 41, 2, 42, 2))
sketch2.addConstraint(Sketcher.Constraint("Tangent", 42, 1, 43, 1))
sketch2.addConstraint(Sketcher.Constraint("Tangent", 43, 2, 36, 1))
sketch2.addConstraint(Sketcher.Constraint("Tangent", 45, 2, 46, 1))
sketch2.addConstraint(Sketcher.Constraint("Tangent", 46, 2, 47, 1))
sketch2.addConstraint(Sketcher.Constraint("Tangent", 47, 2, 48, 1))
sketch2.addConstraint(Sketcher.Constraint("Tangent", 48, 2, 49, 1))
sketch2.addConstraint(Sketcher.Constraint("Tangent", 49, 2, 50, 1))
sketch2.addConstraint(Sketcher.Constraint("Tangent", 50, 2, 51, 2))
sketch2.addConstraint(Sketcher.Constraint("Tangent", 51, 1, 52, 1))
sketch2.addConstraint(Sketcher.Constraint("Tangent", 52, 2, 45, 1))
sketch2.addConstraint(Sketcher.Constraint("Coincident", 4, 3, -1, 1))
sketch2.addConstraint(Sketcher.Constraint("Coincident", 11, 3, -1, 1))
sketch2.addConstraint(Sketcher.Constraint("Coincident", 15, 3, -1, 1))
sketch2.addConstraint(Sketcher.Constraint("Coincident", 24, 3, -1, 1))
sketch2.addConstraint(Sketcher.Constraint("Coincident", 33, 3, -1, 1))
sketch2.addConstraint(Sketcher.Constraint("Coincident", 38, 3, -1, 1))
sketch2.addConstraint(Sketcher.Constraint("Coincident", 42, 3, -1, 1))
sketch2.addConstraint(Sketcher.Constraint("Coincident", 51, 3, -1, 1))
sketch2.addConstraint(Sketcher.Constraint("Equal", 1, 3))
sketch2.addConstraint(Sketcher.Constraint("Equal", 3, 5))
sketch2.addConstraint(Sketcher.Constraint("Equal", 5, 7))
sketch2.addConstraint(Sketcher.Constraint("Equal", 7, 10))
sketch2.addConstraint(Sketcher.Constraint("Equal", 10, 12))
sketch2.addConstraint(Sketcher.Constraint("Equal", 12, 14))
sketch2.addConstraint(Sketcher.Constraint("Equal", 4, 15))
sketch2.addConstraint(Sketcher.Constraint("Equal", 14, 16))
sketch2.addConstraint(Sketcher.Constraint("Equal", 8, 17))
sketch2.addConstraint(Sketcher.Constraint("Equal", 16, 19))
sketch2.addConstraint(Sketcher.Constraint("Equal", 19, 21))
sketch2.addConstraint(Sketcher.Constraint("Equal", 21, 23))
sketch2.addConstraint(Sketcher.Constraint("Equal", 15, 24))
sketch2.addConstraint(Sketcher.Constraint("Equal", 23, 25))
sketch2.addConstraint(Sketcher.Constraint("Equal", 17, 26))
sketch2.addConstraint(Sketcher.Constraint("Equal", 25, 28))
sketch2.addConstraint(Sketcher.Constraint("Equal", 0, 29))
sketch2.addConstraint(Sketcher.Constraint("Equal", 28, 30))
sketch2.addConstraint(Sketcher.Constraint("Equal", 30, 32))
sketch2.addConstraint(Sketcher.Constraint("Equal", 24, 33))
sketch2.addConstraint(Sketcher.Constraint("Equal", 32, 34))
sketch2.addConstraint(Sketcher.Constraint("Equal", 26, 35))
sketch2.addConstraint(Sketcher.Constraint("Equal", 34, 37))
sketch2.addConstraint(Sketcher.Constraint("Equal", 11, 38))
sketch2.addConstraint(Sketcher.Constraint("Equal", 37, 39))
sketch2.addConstraint(Sketcher.Constraint("Equal", 39, 41))
sketch2.addConstraint(Sketcher.Constraint("Equal", 33, 42))
sketch2.addConstraint(Sketcher.Constraint("Equal", 41, 43))
sketch2.addConstraint(Sketcher.Constraint("Equal", 35, 44))
sketch2.addConstraint(Sketcher.Constraint("Equal", 43, 46))
sketch2.addConstraint(Sketcher.Constraint("Equal", 20, 47))
sketch2.addConstraint(Sketcher.Constraint("Equal", 46, 48))
sketch2.addConstraint(Sketcher.Constraint("Equal", 48, 50))
sketch2.addConstraint(Sketcher.Constraint("Equal", 42, 51))
sketch2.addConstraint(Sketcher.Constraint("Equal", 50, 52))
sketch2.addConstraint(Sketcher.Constraint("Equal", 44, 53))
sketch2.addConstraint(Sketcher.Constraint("Symmetric", 7, 3, 28, 3, -1, 1))
sketch2.addConstraint(Sketcher.Constraint("Symmetric", 1, 3, 30, 3, -1, 1))
sketch2.addConstraint(Sketcher.Constraint("Symmetric", 8, 3, 35, 3, -1, 1))
sketch2.addConstraint(Sketcher.Constraint("Symmetric", 17, 3, 44, 3, -1, 1))
sketch2.addConstraint(Sketcher.Constraint("Symmetric", 19, 3, 46, 3, -1, 1))
sketch2.addConstraint(Sketcher.Constraint("Symmetric", 21, 3, 48, 3, -1, 1))
sketch2.addConstraint(Sketcher.Constraint("Symmetric", 26, 3, 53, 3, -1, 1))
sketch2.addConstraint(Sketcher.Constraint("Symmetric", 9, 2, 36, 2, -1, 1))
sketch2.addConstraint(Sketcher.Constraint("Symmetric", 12, 2, 39, 2, -1, 1))
sketch2.addConstraint(Sketcher.Constraint("PointOnObject", 0, 3, -2))
sketch2.addConstraint(Sketcher.Constraint("Perpendicular", 6, 13))
sketch2.addConstraint(Sketcher.Constraint("Perpendicular", 2, 18))
sketch2.addConstraint(Sketcher.Constraint("Perpendicular", 9, 22))
sketch2.addConstraint(Sketcher.Constraint("Perpendicular", 13, 27))
sketch2.addConstraint(Sketcher.Constraint("Perpendicular", 18, 31))
sketch2.addConstraint(Sketcher.Constraint("Perpendicular", 31, 45))
sketch2.addConstraint(Sketcher.Constraint("Perpendicular", 36, 49))
sketch2.addConstraint(Sketcher.Constraint("Equal", 2, 6))
sketch2.addConstraint(Sketcher.Constraint("Equal", 6, 9))
sketch2.addConstraint(Sketcher.Constraint("Equal", 9, 13))
sketch2.addConstraint(Sketcher.Constraint("Equal", 13, 18))
sketch2.addConstraint(Sketcher.Constraint("Equal", 18, 22))
sketch2.addConstraint(Sketcher.Constraint("Radius", 4, Q("19.8 mm")))
sketch2.addConstraint(Sketcher.Constraint("Radius", 11, Q("25.7 mm")))
sketch2.addConstraint(Sketcher.Constraint("Diameter", 8, Q("5.3052 mm")))
sketch2.addConstraint(Sketcher.Constraint("Angle", 2, Q("104.6104 deg")))
sketch2.addConstraint(Sketcher.Constraint("Angle", 6, Q("-105.3892 deg")))
sketch2.addConstraint(Sketcher.Constraint("Angle", 22, Q("-135.3894 deg")))
sketch2.addConstraint(Sketcher.Constraint("Radius", 0, Q("25.6986 mm")))
sketch2.addConstraint(Sketcher.Constraint("Radius", 1, Q("1.7875 mm")))
sketch2.addConstraint(Sketcher.Constraint("Radius", 20, Q("25.7013 mm")))
sketch2.addConstraint(Sketcher.Constraint("DistanceX", 7, 2, -1, 1, Q("5.16 mm")))
sketch2.addConstraint(Sketcher.Constraint("DistanceY", 11, 2, -1, 1, Q("8.45 mm")))
sketch2.addConstraint(Sketcher.Constraint("DistanceX", -1, 1, 23, 2, Q("15.08 mm")))
sketch2.addConstraint(Sketcher.Constraint("DistanceY", -1, 1, 24, 1, Q("6.39 mm")))
sketch2.addConstraint(Sketcher.Constraint("DistanceX", 8, 3, -1, 1, Q("12.046 mm")))
sketch2.addConstraint(Sketcher.Constraint("DistanceY", 8, 3, -1, 1, Q("20.541 mm")))
sketch2.addConstraint(Sketcher.Constraint("DistanceX", -1, 1, 17, 3, Q("11.766 mm")))
sketch2.addConstraint(Sketcher.Constraint("DistanceX", -1, 1, 26, 3, Q("23.812 mm")))
sketch2.addConstraint(Sketcher.Constraint("DistanceY", 17, 3, -1, 1, Q("20.7026 mm")))
sketch2.addConstraint(Sketcher.Constraint("DistanceY", 26, 3, -1, 1, Q("0.1617 mm")))
pocket1 = body.newObject("PartDesign::Pocket", "Pocket")
pocket1.Profile = sketch2
pocket1.Type = "ThroughAll"

# Sketch on YZ plane
sketch3 = body.newObject("Sketcher::SketchObject", "Sketch002")
sketch3.AttachmentSupport = (doc.getObject("YZ_Plane"), [""])
sketch3.MapMode = "FlatFace"
sketch3.addGeometry(Part.Circle(V(0, 0, 0), V(0, 0, 1), 7.5), False)
sketch3.addConstraint(Sketcher.Constraint("Coincident", 0, 3, -1, 1))
sketch3.addConstraint(Sketcher.Constraint("Diameter", 0, Q("15 mm")))
doc.recompute()
hole = body.newObject("PartDesign::Hole", "Hole")
hole.Profile = sketch3
hole.ThreadType = "None"
hole.Diameter = 15
hole.DepthType = "Dimension"
hole.Depth = 38
hole.DrillPoint = "Flat"
hole.Reversed = True

doc.recompute()
